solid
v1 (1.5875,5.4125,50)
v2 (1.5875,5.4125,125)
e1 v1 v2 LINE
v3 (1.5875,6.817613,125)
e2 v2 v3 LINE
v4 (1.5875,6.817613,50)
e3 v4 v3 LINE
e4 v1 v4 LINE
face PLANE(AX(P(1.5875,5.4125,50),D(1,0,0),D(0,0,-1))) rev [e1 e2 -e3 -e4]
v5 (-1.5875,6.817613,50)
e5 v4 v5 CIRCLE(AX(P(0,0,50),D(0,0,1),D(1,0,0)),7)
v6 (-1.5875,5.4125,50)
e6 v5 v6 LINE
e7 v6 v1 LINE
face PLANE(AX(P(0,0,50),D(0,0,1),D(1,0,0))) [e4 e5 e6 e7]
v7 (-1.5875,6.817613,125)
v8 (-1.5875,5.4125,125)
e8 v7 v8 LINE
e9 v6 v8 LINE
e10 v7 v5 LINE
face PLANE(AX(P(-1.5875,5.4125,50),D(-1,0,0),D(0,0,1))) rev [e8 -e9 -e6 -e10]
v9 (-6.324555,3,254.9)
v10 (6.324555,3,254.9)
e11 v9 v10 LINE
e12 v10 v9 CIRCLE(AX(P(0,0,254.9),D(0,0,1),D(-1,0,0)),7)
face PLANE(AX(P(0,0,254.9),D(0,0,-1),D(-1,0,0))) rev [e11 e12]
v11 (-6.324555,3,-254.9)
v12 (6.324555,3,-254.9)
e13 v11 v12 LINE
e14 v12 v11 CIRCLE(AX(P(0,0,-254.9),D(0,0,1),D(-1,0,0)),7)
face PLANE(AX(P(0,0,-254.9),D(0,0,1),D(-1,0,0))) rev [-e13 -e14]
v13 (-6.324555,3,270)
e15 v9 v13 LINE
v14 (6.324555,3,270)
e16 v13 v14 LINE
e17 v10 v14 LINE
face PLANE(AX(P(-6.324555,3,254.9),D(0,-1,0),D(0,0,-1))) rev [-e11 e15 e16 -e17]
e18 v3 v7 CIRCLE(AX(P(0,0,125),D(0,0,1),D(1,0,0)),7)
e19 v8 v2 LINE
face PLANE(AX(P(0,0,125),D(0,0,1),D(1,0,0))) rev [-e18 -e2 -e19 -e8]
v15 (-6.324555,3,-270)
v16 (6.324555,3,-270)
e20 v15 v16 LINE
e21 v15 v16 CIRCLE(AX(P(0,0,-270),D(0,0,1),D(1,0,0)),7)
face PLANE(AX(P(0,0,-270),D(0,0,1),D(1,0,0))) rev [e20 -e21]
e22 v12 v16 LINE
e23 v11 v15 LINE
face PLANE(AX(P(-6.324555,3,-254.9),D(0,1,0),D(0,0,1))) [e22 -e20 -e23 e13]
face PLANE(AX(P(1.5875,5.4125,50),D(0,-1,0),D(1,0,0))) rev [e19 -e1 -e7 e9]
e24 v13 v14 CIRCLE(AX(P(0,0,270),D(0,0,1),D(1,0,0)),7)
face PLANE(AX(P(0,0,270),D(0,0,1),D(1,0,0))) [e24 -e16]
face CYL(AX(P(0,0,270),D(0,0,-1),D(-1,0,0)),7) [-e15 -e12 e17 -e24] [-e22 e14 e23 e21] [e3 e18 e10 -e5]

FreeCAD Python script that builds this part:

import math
import FreeCAD as App
import Part
import Sketcher
from FreeCAD import Vector


def add_polygon(sketch, points):
    """Adds a closed chain of lines whose ends are joined by coincident constraints."""
    first, n = sketch.GeometryCount, len(points)
    for a, b in zip(points, points[1:] + points[:1]):
        sketch.addGeometry(Part.LineSegment(App.Vector(*a, 0), App.Vector(*b, 0)), False)
    for i in range(n):
        sketch.addConstraint(Sketcher.Constraint("Coincident", first + i, 2, first + (i + 1) % n, 1))

doc = App.newDocument("Part")
body = doc.addObject("PartDesign::Body", "Body")

# Sketch on XY plane
sketch1 = body.newObject("Sketcher::SketchObject", "Sketch")
sketch1.AttachmentSupport = (doc.getObject("XY_Plane"), [""])
sketch1.MapMode = "FlatFace"
sketch1.addGeometry(Part.Circle(Vector(0, 0, 0), Vector(0, 0, 1), 7), False)
sketch1.addConstraint([
    Sketcher.Constraint("Coincident", 0, 3, -1, 1),
    Sketcher.Constraint("Diameter", 0, 14.0),
])
pad1 = body.newObject("PartDesign::Pad", "Pad")
pad1.Profile = sketch1
pad1.Length = 540
pad1.Midplane = True

# Sketch on XY plane
sketch2 = body.newObject("Sketcher::SketchObject", "Sketch001")
sketch2.AttachmentSupport = (doc.getObject("XY_Plane"), [""])
sketch2.MapMode = "FlatFace"
sketch2.AttachmentOffset = App.Placement(Vector(0, 0, 270), App.Rotation())
sketch2.addGeometry([
    Part.LineSegment(Vector(-6, 3, 0), Vector(6, 3, 0)),
    Part.ArcOfCircle(Part.Circle(Vector(0, 0, 0), Vector(0, 0, 1), 7), math.radians(25), math.radians(155)),
], False)
sketch2.addConstraint([
    Sketcher.Constraint("Coincident", 0, 1, 1, 2),
    Sketcher.Constraint("Coincident", 1, 1, 0, 2),
    Sketcher.Constraint("Horizontal", 0),
    Sketcher.Constraint("Coincident", 1, 3, -1, 1),
    Sketcher.Constraint("Radius", 1, 7.0),
    Sketcher.Constraint("DistanceY", -1, 1, 0, 1, 3.0),
])
pocket1 = body.newObject("PartDesign::Pocket", "Pocket")
pocket1.Profile = sketch2
pocket1.Length = 15.1

# Sketch on XY plane
sketch3 = body.newObject("Sketcher::SketchObject", "Sketch002")
sketch3.AttachmentSupport = (doc.getObject("XY_Plane"), [""])
sketch3.MapMode = "FlatFace"
sketch3.AttachmentOffset = App.Placement(Vector(0, 0, 125), App.Rotation())
add_polygon(sketch3, [(-1.6, 8.6), (-1.6, 5.4), (1.6, 5.4), (1.6, 8.6)])  # lines 0-3
sketch3.addConstraint([
    Sketcher.Constraint("Vertical", 0),
    Sketcher.Constraint("Horizontal", 1),
    Sketcher.Constraint("Vertical", 2),
    Sketcher.Constraint("Horizontal", 3),
    Sketcher.Constraint("Equal", 3, 0),
    Sketcher.Constraint("DistanceX", 1, 1, 1, 2, 3.175),
    Sketcher.Constraint("DistanceX", 0, 2, -1, 1, 1.5875),
    Sketcher.Constraint("DistanceY", -1, 1, 0, 2, 5.4125),
])
pocket2 = body.newObject("PartDesign::Pocket", "Pocket001")
pocket2.Profile = sketch3
pocket2.Length = 75
doc.recompute()

mirrored = body.newObject("PartDesign::Mirrored", "Mirrored")
mirrored.Originals = [pocket1]
mirrored.MirrorPlane = (doc.getObject("XY_Plane"), [""])
body.Tip = mirrored

doc.recompute()
